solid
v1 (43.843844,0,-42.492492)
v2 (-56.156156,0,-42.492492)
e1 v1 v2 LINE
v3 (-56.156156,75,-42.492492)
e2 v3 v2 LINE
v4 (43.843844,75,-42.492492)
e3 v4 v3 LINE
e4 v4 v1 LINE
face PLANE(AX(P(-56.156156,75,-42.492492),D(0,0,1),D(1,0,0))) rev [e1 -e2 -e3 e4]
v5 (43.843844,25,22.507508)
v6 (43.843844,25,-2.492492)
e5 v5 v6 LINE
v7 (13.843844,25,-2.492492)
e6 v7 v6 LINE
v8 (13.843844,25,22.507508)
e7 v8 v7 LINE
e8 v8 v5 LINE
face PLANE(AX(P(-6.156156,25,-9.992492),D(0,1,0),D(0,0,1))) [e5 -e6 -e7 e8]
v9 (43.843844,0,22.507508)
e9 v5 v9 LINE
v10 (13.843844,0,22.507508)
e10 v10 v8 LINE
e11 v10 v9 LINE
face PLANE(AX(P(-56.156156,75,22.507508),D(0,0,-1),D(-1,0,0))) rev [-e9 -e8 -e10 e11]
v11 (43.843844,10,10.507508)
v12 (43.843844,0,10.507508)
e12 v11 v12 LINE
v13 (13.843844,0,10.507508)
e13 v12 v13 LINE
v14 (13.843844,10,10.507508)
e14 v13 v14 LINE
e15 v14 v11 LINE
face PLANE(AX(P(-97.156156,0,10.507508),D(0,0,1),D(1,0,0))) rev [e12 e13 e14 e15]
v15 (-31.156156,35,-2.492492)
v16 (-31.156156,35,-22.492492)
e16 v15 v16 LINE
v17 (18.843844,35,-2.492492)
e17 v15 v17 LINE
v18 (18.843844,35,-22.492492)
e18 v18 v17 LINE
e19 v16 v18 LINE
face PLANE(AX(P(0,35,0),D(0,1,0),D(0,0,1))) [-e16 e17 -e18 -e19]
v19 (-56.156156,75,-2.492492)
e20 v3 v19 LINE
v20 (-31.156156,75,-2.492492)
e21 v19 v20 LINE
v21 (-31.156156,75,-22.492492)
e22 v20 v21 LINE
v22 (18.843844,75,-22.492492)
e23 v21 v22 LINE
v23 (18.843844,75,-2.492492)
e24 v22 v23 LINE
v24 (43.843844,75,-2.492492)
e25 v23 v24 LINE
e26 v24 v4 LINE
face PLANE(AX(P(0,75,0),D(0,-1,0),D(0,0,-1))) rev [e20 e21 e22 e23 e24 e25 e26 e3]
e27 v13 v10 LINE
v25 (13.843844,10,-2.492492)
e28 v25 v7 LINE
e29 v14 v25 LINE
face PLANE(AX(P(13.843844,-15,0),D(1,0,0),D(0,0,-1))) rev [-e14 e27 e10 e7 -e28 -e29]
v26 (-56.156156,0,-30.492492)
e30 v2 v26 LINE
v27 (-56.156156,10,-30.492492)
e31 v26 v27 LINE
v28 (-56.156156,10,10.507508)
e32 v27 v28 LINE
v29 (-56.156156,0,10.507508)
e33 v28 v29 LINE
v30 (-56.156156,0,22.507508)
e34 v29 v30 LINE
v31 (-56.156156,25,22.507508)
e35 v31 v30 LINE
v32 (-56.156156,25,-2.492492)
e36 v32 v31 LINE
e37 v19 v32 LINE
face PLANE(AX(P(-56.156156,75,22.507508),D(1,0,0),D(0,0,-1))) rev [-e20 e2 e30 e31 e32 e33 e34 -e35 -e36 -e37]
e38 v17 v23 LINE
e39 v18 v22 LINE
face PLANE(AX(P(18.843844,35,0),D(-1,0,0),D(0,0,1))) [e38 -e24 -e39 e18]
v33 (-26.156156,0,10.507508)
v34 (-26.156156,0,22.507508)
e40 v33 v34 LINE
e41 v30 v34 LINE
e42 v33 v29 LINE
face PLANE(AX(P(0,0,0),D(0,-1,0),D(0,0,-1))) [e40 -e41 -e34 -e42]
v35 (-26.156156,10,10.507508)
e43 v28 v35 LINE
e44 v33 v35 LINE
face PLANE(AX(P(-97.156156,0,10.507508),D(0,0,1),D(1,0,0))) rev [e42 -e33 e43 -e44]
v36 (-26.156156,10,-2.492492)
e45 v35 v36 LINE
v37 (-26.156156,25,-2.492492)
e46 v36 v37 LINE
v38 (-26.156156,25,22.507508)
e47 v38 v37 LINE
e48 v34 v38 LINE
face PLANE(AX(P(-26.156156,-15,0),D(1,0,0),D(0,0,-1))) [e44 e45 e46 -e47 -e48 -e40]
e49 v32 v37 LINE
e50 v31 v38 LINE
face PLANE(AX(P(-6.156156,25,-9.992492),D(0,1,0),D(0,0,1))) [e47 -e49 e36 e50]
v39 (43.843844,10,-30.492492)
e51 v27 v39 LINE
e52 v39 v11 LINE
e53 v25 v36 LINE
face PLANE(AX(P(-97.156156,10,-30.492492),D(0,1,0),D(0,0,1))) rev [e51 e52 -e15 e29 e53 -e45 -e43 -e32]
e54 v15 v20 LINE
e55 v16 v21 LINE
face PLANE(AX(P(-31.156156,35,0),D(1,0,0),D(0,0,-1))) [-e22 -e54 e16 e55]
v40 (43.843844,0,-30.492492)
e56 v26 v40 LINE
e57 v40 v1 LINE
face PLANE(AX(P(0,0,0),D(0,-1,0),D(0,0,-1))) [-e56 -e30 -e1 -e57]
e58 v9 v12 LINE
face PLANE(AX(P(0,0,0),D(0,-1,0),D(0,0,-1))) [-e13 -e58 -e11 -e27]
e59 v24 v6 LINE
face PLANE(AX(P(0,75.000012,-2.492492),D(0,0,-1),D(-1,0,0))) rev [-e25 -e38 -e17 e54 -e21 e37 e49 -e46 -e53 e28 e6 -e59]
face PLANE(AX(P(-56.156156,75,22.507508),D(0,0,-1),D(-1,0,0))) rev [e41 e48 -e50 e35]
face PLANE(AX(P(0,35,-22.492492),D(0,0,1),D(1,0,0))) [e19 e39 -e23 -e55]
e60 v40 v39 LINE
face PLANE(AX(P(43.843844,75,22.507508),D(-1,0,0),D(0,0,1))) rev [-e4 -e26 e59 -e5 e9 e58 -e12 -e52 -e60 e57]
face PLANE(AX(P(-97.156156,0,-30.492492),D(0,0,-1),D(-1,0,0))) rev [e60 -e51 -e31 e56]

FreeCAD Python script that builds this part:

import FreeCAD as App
import Part
import Sketcher
Q = App.Units.Quantity

doc = App.newDocument("Part")
body = doc.addObject("PartDesign::Body", "Body")

sketch1 = body.newObject("Sketcher::SketchObject", "Sketch")
sketch1.AttachmentSupport = (doc.getObject("XZ_Plane"), [""])
sketch1.MapMode = "FlatFace"
sketch1.addGeometry(Part.LineSegment(App.Vector(-56, -42, 0), App.Vector(-56, 23, 0)), False)
sketch1.addGeometry(Part.LineSegment(App.Vector(-56, 23, 0), App.Vector(44, 23, 0)), False)
sketch1.addGeometry(Part.LineSegment(App.Vector(44, 23, 0), App.Vector(44, -42, 0)), False)
sketch1.addGeometry(Part.LineSegment(App.Vector(44, -42, 0), App.Vector(-56, -42, 0)), False)
sketch1.addConstraint(Sketcher.Constraint("Coincident", 0, 2, 1, 1))
sketch1.addConstraint(Sketcher.Constraint("Coincident", 1, 2, 2, 1))
sketch1.addConstraint(Sketcher.Constraint("Coincident", 2, 2, 3, 1))
sketch1.addConstraint(Sketcher.Constraint("Coincident", 3, 2, 0, 1))
sketch1.addConstraint(Sketcher.Constraint("Vertical", 0))
sketch1.addConstraint(Sketcher.Constraint("Horizontal", 1))
sketch1.addConstraint(Sketcher.Constraint("Vertical", 2))
sketch1.addConstraint(Sketcher.Constraint("Horizontal", 3))
sketch1.addConstraint(Sketcher.Constraint("DistanceX", 1, 1, 1, 2, Q("100 mm")))
sketch1.addConstraint(Sketcher.Constraint("DistanceY", 0, 1, 0, 2, Q("65 mm")))
sketch1.addConstraint(Sketcher.Constraint("DistanceX", 0, 2, -1, 1, Q("56.156156 mm")))
sketch1.addConstraint(Sketcher.Constraint("DistanceY", -1, 1, 0, 2, Q("22.507508 mm")))
pad1 = body.newObject("PartDesign::Pad", "Pad")
pad1.Profile = sketch1
pad1.Length = 75
pad1.Reversed = True

sketch2 = body.newObject("Sketcher::SketchObject", "Sketch001")
sketch2.AttachmentSupport = (doc.getObject("YZ_Plane"), [""])
sketch2.MapMode = "FlatFace"
sketch2.AttachmentOffset = App.Placement(App.Vector(0, 0, 43.843844), App.Rotation())
sketch2.addGeometry(Part.LineSegment(App.Vector(10, 11, 0), App.Vector(0, 11, 0)), False)
sketch2.addGeometry(Part.LineSegment(App.Vector(0, 11, 0), App.Vector(0, -30, 0)), False)
sketch2.addGeometry(Part.LineSegment(App.Vector(0, -30, 0), App.Vector(10, -30, 0)), False)
sketch2.addGeometry(Part.LineSegment(App.Vector(10, -30, 0), App.Vector(10, 11, 0)), False)
sketch2.addConstraint(Sketcher.Constraint("Coincident", 0, 2, 1, 1))
sketch2.addConstraint(Sketcher.Constraint("Coincident", 1, 2, 2, 1))
sketch2.addConstraint(Sketcher.Constraint("Coincident", 2, 2, 3, 1))
sketch2.addConstraint(Sketcher.Constraint("Coincident", 3, 2, 0, 1))
sketch2.addConstraint(Sketcher.Constraint("Horizontal", 0))
sketch2.addConstraint(Sketcher.Constraint("Vertical", 1))
sketch2.addConstraint(Sketcher.Constraint("Horizontal", 2))
sketch2.addConstraint(Sketcher.Constraint("Vertical", 3))
sketch2.addConstraint(Sketcher.Constraint("PointOnObject", 0, 2, -2))
sketch2.addConstraint(Sketcher.Constraint("DistanceX", 0, 2, 0, 1, Q("10 mm")))
sketch2.addConstraint(Sketcher.Constraint("DistanceY", 1, 2, 1, 1, Q("41 mm")))
sketch2.addConstraint(Sketcher.Constraint("DistanceY", -1, 1, 0, 2, Q("10.507508 mm")))
pocket1 = body.newObject("PartDesign::Pocket", "Pocket")
pocket1.Profile = sketch2
pocket1.Length = 141

sketch3 = body.newObject("Sketcher::SketchObject", "Sketch002")
sketch3.AttachmentSupport = (doc.getObject("XZ_Plane"), [""])
sketch3.MapMode = "FlatFace"
sketch3.AttachmentOffset = App.Placement(App.Vector(0, 0, -75), App.Rotation())
sketch3.addGeometry(Part.LineSegment(App.Vector(-71, -58, 0), App.Vector(-71, 38, 0)), False)
sketch3.addGeometry(Part.LineSegment(App.Vector(-71, 38, 0), App.Vector(59, 38, 0)), False)
sketch3.addGeometry(Part.LineSegment(App.Vector(59, 38, 0), App.Vector(59, -58, 0)), False)
sketch3.addGeometry(Part.LineSegment(App.Vector(59, -58, 0), App.Vector(-71, -58, 0)), False)
sketch3.addGeometry(Part.LineSegment(App.Vector(44, -2, 0), App.Vector(-56, -2, 0)), False)
sketch3.addGeometry(Part.LineSegment(App.Vector(-56, -2, 0), App.Vector(-56, -42, 0)), False)
sketch3.addGeometry(Part.LineSegment(App.Vector(-56, -42, 0), App.Vector(44, -42, 0)), False)
sketch3.addGeometry(Part.LineSegment(App.Vector(44, -42, 0), App.Vector(44, -2, 0)), False)
sketch3.addConstraint(Sketcher.Constraint("Coincident", 0, 2, 1, 1))
sketch3.addConstraint(Sketcher.Constraint("Coincident", 1, 2, 2, 1))
sketch3.addConstraint(Sketcher.Constraint("Coincident", 2, 2, 3, 1))
sketch3.addConstraint(Sketcher.Constraint("Coincident", 3, 2, 0, 1))
sketch3.addConstraint(Sketcher.Constraint("Coincident", 4, 2, 5, 1))
sketch3.addConstraint(Sketcher.Constraint("Coincident", 5, 2, 6, 1))
sketch3.addConstraint(Sketcher.Constraint("Coincident", 6, 2, 7, 1))
sketch3.addConstraint(Sketcher.Constraint("Coincident", 7, 2, 4, 1))
sketch3.addConstraint(Sketcher.Constraint("Vertical", 0))
sketch3.addConstraint(Sketcher.Constraint("Horizontal", 1))
sketch3.addConstraint(Sketcher.Constraint("Vertical", 2))
sketch3.addConstraint(Sketcher.Constraint("Horizontal", 3))
sketch3.addConstraint(Sketcher.Constraint("Horizontal", 4))
sketch3.addConstraint(Sketcher.Constraint("Vertical", 5))
sketch3.addConstraint(Sketcher.Constraint("Horizontal", 6))
sketch3.addConstraint(Sketcher.Constraint("Vertical", 7))
sketch3.addConstraint(Sketcher.Constraint("DistanceX", 4, 2, 4, 1, Q("100 mm")))
sketch3.addConstraint(Sketcher.Constraint("DistanceY", 5, 2, 5, 1, Q("40 mm")))
sketch3.addConstraint(Sketcher.Constraint("DistanceX", 1, 1, 1, 2, Q("130.178 mm")))
sketch3.addConstraint(Sketcher.Constraint("DistanceY", 0, 1, 0, 2, Q("95.178 mm")))
sketch3.addConstraint(Sketcher.Constraint("DistanceX", 0, 2, -1, 1, Q("71.245 mm")))
sketch3.addConstraint(Sketcher.Constraint("DistanceY", -1, 1, 0, 2, Q("37.597 mm")))
sketch3.addConstraint(Sketcher.Constraint("DistanceX", 4, 2, -1, 1, Q("56.156156 mm")))
sketch3.addConstraint(Sketcher.Constraint("DistanceY", 4, 2, -1, 1, Q("2.492492 mm")))
pocket2 = body.newObject("PartDesign::Pocket", "Pocket001")
pocket2.Profile = sketch3
pocket2.Type = "TwoLengths"
pocket2.Length = 1
pocket2.Length2 = 50

sketch4 = body.newObject("Sketcher::SketchObject", "Sketch003")
sketch4.AttachmentSupport = (doc.getObject("XZ_Plane"), [""])
sketch4.MapMode = "FlatFace"
sketch4.AttachmentOffset = App.Placement(App.Vector(0, 0, -75), App.Rotation())
sketch4.addGeometry(Part.LineSegment(App.Vector(-31, -22, 0), App.Vector(-31, -2, 0)), False)
sketch4.addGeometry(Part.LineSegment(App.Vector(-31, -2, 0), App.Vector(19, -2, 0)), False)
sketch4.addGeometry(Part.LineSegment(App.Vector(19, -2, 0), App.Vector(19, -22, 0)), False)
sketch4.addGeometry(Part.LineSegment(App.Vector(19, -22, 0), App.Vector(-31, -22, 0)), False)
sketch4.addConstraint(Sketcher.Constraint("Coincident", 0, 2, 1, 1))
sketch4.addConstraint(Sketcher.Constraint("Coincident", 1, 2, 2, 1))
sketch4.addConstraint(Sketcher.Constraint("Coincident", 2, 2, 3, 1))
sketch4.addConstraint(Sketcher.Constraint("Coincident", 3, 2, 0, 1))
sketch4.addConstraint(Sketcher.Constraint("Vertical", 0))
sketch4.addConstraint(Sketcher.Constraint("Horizontal", 1))
sketch4.addConstraint(Sketcher.Constraint("Vertical", 2))
sketch4.addConstraint(Sketcher.Constraint("Horizontal", 3))
sketch4.addConstraint(Sketcher.Constraint("DistanceX", 1, 1, 1, 2, Q("50 mm")))
sketch4.addConstraint(Sketcher.Constraint("DistanceY", 0, 1, 0, 2, Q("20 mm")))
sketch4.addConstraint(Sketcher.Constraint("DistanceX", 0, 2, -1, 1, Q("31.156156 mm")))
sketch4.addConstraint(Sketcher.Constraint("DistanceY", 0, 2, -1, 1, Q("2.492492 mm")))
pocket3 = body.newObject("PartDesign::Pocket", "Pocket002")
pocket3.Profile = sketch4
pocket3.Length = 40
pocket3.Reversed = True

sketch5 = body.newObject("Sketcher::SketchObject", "Sketch004")
sketch5.AttachmentSupport = (doc.getObject("XZ_Plane"), [""])
sketch5.MapMode = "FlatFace"
sketch5.AttachmentOffset = App.Placement(App.Vector(0, 0, -25), App.Rotation())
sketch5.addGeometry(Part.LineSegment(App.Vector(-26, -2, 0), App.Vector(-26, 23, 0)), False)
sketch5.addGeometry(Part.LineSegment(App.Vector(-26, 23, 0), App.Vector(14, 23, 0)), False)
sketch5.addGeometry(Part.LineSegment(App.Vector(14, 23, 0), App.Vector(14, -2, 0)), False)
sketch5.addGeometry(Part.LineSegment(App.Vector(14, -2, 0), App.Vector(-26, -2, 0)), False)
sketch5.addConstraint(Sketcher.Constraint("Coincident", 0, 2, 1, 1))
sketch5.addConstraint(Sketcher.Constraint("Coincident", 1, 2, 2, 1))
sketch5.addConstraint(Sketcher.Constraint("Coincident", 2, 2, 3, 1))
sketch5.addConstraint(Sketcher.Constraint("Coincident", 3, 2, 0, 1))
sketch5.addConstraint(Sketcher.Constraint("Vertical", 0))
sketch5.addConstraint(Sketcher.Constraint("Horizontal", 1))
sketch5.addConstraint(Sketcher.Constraint("Vertical", 2))
sketch5.addConstraint(Sketcher.Constraint("Horizontal", 3))
sketch5.addConstraint(Sketcher.Constraint("DistanceX", 1, 1, 1, 2, Q("40 mm")))
sketch5.addConstraint(Sketcher.Constraint("DistanceY", 0, 1, 0, 2, Q("25 mm")))
sketch5.addConstraint(Sketcher.Constraint("DistanceX", 0, 2, -1, 1, Q("26.156156 mm")))
sketch5.addConstraint(Sketcher.Constraint("DistanceY", -1, 1, 0, 2, Q("22.507508 mm")))
pocket4 = body.newObject("PartDesign::Pocket", "Pocket003")
pocket4.Profile = sketch5
pocket4.Length = 40
pocket4.Reversed = True

doc.recompute()
